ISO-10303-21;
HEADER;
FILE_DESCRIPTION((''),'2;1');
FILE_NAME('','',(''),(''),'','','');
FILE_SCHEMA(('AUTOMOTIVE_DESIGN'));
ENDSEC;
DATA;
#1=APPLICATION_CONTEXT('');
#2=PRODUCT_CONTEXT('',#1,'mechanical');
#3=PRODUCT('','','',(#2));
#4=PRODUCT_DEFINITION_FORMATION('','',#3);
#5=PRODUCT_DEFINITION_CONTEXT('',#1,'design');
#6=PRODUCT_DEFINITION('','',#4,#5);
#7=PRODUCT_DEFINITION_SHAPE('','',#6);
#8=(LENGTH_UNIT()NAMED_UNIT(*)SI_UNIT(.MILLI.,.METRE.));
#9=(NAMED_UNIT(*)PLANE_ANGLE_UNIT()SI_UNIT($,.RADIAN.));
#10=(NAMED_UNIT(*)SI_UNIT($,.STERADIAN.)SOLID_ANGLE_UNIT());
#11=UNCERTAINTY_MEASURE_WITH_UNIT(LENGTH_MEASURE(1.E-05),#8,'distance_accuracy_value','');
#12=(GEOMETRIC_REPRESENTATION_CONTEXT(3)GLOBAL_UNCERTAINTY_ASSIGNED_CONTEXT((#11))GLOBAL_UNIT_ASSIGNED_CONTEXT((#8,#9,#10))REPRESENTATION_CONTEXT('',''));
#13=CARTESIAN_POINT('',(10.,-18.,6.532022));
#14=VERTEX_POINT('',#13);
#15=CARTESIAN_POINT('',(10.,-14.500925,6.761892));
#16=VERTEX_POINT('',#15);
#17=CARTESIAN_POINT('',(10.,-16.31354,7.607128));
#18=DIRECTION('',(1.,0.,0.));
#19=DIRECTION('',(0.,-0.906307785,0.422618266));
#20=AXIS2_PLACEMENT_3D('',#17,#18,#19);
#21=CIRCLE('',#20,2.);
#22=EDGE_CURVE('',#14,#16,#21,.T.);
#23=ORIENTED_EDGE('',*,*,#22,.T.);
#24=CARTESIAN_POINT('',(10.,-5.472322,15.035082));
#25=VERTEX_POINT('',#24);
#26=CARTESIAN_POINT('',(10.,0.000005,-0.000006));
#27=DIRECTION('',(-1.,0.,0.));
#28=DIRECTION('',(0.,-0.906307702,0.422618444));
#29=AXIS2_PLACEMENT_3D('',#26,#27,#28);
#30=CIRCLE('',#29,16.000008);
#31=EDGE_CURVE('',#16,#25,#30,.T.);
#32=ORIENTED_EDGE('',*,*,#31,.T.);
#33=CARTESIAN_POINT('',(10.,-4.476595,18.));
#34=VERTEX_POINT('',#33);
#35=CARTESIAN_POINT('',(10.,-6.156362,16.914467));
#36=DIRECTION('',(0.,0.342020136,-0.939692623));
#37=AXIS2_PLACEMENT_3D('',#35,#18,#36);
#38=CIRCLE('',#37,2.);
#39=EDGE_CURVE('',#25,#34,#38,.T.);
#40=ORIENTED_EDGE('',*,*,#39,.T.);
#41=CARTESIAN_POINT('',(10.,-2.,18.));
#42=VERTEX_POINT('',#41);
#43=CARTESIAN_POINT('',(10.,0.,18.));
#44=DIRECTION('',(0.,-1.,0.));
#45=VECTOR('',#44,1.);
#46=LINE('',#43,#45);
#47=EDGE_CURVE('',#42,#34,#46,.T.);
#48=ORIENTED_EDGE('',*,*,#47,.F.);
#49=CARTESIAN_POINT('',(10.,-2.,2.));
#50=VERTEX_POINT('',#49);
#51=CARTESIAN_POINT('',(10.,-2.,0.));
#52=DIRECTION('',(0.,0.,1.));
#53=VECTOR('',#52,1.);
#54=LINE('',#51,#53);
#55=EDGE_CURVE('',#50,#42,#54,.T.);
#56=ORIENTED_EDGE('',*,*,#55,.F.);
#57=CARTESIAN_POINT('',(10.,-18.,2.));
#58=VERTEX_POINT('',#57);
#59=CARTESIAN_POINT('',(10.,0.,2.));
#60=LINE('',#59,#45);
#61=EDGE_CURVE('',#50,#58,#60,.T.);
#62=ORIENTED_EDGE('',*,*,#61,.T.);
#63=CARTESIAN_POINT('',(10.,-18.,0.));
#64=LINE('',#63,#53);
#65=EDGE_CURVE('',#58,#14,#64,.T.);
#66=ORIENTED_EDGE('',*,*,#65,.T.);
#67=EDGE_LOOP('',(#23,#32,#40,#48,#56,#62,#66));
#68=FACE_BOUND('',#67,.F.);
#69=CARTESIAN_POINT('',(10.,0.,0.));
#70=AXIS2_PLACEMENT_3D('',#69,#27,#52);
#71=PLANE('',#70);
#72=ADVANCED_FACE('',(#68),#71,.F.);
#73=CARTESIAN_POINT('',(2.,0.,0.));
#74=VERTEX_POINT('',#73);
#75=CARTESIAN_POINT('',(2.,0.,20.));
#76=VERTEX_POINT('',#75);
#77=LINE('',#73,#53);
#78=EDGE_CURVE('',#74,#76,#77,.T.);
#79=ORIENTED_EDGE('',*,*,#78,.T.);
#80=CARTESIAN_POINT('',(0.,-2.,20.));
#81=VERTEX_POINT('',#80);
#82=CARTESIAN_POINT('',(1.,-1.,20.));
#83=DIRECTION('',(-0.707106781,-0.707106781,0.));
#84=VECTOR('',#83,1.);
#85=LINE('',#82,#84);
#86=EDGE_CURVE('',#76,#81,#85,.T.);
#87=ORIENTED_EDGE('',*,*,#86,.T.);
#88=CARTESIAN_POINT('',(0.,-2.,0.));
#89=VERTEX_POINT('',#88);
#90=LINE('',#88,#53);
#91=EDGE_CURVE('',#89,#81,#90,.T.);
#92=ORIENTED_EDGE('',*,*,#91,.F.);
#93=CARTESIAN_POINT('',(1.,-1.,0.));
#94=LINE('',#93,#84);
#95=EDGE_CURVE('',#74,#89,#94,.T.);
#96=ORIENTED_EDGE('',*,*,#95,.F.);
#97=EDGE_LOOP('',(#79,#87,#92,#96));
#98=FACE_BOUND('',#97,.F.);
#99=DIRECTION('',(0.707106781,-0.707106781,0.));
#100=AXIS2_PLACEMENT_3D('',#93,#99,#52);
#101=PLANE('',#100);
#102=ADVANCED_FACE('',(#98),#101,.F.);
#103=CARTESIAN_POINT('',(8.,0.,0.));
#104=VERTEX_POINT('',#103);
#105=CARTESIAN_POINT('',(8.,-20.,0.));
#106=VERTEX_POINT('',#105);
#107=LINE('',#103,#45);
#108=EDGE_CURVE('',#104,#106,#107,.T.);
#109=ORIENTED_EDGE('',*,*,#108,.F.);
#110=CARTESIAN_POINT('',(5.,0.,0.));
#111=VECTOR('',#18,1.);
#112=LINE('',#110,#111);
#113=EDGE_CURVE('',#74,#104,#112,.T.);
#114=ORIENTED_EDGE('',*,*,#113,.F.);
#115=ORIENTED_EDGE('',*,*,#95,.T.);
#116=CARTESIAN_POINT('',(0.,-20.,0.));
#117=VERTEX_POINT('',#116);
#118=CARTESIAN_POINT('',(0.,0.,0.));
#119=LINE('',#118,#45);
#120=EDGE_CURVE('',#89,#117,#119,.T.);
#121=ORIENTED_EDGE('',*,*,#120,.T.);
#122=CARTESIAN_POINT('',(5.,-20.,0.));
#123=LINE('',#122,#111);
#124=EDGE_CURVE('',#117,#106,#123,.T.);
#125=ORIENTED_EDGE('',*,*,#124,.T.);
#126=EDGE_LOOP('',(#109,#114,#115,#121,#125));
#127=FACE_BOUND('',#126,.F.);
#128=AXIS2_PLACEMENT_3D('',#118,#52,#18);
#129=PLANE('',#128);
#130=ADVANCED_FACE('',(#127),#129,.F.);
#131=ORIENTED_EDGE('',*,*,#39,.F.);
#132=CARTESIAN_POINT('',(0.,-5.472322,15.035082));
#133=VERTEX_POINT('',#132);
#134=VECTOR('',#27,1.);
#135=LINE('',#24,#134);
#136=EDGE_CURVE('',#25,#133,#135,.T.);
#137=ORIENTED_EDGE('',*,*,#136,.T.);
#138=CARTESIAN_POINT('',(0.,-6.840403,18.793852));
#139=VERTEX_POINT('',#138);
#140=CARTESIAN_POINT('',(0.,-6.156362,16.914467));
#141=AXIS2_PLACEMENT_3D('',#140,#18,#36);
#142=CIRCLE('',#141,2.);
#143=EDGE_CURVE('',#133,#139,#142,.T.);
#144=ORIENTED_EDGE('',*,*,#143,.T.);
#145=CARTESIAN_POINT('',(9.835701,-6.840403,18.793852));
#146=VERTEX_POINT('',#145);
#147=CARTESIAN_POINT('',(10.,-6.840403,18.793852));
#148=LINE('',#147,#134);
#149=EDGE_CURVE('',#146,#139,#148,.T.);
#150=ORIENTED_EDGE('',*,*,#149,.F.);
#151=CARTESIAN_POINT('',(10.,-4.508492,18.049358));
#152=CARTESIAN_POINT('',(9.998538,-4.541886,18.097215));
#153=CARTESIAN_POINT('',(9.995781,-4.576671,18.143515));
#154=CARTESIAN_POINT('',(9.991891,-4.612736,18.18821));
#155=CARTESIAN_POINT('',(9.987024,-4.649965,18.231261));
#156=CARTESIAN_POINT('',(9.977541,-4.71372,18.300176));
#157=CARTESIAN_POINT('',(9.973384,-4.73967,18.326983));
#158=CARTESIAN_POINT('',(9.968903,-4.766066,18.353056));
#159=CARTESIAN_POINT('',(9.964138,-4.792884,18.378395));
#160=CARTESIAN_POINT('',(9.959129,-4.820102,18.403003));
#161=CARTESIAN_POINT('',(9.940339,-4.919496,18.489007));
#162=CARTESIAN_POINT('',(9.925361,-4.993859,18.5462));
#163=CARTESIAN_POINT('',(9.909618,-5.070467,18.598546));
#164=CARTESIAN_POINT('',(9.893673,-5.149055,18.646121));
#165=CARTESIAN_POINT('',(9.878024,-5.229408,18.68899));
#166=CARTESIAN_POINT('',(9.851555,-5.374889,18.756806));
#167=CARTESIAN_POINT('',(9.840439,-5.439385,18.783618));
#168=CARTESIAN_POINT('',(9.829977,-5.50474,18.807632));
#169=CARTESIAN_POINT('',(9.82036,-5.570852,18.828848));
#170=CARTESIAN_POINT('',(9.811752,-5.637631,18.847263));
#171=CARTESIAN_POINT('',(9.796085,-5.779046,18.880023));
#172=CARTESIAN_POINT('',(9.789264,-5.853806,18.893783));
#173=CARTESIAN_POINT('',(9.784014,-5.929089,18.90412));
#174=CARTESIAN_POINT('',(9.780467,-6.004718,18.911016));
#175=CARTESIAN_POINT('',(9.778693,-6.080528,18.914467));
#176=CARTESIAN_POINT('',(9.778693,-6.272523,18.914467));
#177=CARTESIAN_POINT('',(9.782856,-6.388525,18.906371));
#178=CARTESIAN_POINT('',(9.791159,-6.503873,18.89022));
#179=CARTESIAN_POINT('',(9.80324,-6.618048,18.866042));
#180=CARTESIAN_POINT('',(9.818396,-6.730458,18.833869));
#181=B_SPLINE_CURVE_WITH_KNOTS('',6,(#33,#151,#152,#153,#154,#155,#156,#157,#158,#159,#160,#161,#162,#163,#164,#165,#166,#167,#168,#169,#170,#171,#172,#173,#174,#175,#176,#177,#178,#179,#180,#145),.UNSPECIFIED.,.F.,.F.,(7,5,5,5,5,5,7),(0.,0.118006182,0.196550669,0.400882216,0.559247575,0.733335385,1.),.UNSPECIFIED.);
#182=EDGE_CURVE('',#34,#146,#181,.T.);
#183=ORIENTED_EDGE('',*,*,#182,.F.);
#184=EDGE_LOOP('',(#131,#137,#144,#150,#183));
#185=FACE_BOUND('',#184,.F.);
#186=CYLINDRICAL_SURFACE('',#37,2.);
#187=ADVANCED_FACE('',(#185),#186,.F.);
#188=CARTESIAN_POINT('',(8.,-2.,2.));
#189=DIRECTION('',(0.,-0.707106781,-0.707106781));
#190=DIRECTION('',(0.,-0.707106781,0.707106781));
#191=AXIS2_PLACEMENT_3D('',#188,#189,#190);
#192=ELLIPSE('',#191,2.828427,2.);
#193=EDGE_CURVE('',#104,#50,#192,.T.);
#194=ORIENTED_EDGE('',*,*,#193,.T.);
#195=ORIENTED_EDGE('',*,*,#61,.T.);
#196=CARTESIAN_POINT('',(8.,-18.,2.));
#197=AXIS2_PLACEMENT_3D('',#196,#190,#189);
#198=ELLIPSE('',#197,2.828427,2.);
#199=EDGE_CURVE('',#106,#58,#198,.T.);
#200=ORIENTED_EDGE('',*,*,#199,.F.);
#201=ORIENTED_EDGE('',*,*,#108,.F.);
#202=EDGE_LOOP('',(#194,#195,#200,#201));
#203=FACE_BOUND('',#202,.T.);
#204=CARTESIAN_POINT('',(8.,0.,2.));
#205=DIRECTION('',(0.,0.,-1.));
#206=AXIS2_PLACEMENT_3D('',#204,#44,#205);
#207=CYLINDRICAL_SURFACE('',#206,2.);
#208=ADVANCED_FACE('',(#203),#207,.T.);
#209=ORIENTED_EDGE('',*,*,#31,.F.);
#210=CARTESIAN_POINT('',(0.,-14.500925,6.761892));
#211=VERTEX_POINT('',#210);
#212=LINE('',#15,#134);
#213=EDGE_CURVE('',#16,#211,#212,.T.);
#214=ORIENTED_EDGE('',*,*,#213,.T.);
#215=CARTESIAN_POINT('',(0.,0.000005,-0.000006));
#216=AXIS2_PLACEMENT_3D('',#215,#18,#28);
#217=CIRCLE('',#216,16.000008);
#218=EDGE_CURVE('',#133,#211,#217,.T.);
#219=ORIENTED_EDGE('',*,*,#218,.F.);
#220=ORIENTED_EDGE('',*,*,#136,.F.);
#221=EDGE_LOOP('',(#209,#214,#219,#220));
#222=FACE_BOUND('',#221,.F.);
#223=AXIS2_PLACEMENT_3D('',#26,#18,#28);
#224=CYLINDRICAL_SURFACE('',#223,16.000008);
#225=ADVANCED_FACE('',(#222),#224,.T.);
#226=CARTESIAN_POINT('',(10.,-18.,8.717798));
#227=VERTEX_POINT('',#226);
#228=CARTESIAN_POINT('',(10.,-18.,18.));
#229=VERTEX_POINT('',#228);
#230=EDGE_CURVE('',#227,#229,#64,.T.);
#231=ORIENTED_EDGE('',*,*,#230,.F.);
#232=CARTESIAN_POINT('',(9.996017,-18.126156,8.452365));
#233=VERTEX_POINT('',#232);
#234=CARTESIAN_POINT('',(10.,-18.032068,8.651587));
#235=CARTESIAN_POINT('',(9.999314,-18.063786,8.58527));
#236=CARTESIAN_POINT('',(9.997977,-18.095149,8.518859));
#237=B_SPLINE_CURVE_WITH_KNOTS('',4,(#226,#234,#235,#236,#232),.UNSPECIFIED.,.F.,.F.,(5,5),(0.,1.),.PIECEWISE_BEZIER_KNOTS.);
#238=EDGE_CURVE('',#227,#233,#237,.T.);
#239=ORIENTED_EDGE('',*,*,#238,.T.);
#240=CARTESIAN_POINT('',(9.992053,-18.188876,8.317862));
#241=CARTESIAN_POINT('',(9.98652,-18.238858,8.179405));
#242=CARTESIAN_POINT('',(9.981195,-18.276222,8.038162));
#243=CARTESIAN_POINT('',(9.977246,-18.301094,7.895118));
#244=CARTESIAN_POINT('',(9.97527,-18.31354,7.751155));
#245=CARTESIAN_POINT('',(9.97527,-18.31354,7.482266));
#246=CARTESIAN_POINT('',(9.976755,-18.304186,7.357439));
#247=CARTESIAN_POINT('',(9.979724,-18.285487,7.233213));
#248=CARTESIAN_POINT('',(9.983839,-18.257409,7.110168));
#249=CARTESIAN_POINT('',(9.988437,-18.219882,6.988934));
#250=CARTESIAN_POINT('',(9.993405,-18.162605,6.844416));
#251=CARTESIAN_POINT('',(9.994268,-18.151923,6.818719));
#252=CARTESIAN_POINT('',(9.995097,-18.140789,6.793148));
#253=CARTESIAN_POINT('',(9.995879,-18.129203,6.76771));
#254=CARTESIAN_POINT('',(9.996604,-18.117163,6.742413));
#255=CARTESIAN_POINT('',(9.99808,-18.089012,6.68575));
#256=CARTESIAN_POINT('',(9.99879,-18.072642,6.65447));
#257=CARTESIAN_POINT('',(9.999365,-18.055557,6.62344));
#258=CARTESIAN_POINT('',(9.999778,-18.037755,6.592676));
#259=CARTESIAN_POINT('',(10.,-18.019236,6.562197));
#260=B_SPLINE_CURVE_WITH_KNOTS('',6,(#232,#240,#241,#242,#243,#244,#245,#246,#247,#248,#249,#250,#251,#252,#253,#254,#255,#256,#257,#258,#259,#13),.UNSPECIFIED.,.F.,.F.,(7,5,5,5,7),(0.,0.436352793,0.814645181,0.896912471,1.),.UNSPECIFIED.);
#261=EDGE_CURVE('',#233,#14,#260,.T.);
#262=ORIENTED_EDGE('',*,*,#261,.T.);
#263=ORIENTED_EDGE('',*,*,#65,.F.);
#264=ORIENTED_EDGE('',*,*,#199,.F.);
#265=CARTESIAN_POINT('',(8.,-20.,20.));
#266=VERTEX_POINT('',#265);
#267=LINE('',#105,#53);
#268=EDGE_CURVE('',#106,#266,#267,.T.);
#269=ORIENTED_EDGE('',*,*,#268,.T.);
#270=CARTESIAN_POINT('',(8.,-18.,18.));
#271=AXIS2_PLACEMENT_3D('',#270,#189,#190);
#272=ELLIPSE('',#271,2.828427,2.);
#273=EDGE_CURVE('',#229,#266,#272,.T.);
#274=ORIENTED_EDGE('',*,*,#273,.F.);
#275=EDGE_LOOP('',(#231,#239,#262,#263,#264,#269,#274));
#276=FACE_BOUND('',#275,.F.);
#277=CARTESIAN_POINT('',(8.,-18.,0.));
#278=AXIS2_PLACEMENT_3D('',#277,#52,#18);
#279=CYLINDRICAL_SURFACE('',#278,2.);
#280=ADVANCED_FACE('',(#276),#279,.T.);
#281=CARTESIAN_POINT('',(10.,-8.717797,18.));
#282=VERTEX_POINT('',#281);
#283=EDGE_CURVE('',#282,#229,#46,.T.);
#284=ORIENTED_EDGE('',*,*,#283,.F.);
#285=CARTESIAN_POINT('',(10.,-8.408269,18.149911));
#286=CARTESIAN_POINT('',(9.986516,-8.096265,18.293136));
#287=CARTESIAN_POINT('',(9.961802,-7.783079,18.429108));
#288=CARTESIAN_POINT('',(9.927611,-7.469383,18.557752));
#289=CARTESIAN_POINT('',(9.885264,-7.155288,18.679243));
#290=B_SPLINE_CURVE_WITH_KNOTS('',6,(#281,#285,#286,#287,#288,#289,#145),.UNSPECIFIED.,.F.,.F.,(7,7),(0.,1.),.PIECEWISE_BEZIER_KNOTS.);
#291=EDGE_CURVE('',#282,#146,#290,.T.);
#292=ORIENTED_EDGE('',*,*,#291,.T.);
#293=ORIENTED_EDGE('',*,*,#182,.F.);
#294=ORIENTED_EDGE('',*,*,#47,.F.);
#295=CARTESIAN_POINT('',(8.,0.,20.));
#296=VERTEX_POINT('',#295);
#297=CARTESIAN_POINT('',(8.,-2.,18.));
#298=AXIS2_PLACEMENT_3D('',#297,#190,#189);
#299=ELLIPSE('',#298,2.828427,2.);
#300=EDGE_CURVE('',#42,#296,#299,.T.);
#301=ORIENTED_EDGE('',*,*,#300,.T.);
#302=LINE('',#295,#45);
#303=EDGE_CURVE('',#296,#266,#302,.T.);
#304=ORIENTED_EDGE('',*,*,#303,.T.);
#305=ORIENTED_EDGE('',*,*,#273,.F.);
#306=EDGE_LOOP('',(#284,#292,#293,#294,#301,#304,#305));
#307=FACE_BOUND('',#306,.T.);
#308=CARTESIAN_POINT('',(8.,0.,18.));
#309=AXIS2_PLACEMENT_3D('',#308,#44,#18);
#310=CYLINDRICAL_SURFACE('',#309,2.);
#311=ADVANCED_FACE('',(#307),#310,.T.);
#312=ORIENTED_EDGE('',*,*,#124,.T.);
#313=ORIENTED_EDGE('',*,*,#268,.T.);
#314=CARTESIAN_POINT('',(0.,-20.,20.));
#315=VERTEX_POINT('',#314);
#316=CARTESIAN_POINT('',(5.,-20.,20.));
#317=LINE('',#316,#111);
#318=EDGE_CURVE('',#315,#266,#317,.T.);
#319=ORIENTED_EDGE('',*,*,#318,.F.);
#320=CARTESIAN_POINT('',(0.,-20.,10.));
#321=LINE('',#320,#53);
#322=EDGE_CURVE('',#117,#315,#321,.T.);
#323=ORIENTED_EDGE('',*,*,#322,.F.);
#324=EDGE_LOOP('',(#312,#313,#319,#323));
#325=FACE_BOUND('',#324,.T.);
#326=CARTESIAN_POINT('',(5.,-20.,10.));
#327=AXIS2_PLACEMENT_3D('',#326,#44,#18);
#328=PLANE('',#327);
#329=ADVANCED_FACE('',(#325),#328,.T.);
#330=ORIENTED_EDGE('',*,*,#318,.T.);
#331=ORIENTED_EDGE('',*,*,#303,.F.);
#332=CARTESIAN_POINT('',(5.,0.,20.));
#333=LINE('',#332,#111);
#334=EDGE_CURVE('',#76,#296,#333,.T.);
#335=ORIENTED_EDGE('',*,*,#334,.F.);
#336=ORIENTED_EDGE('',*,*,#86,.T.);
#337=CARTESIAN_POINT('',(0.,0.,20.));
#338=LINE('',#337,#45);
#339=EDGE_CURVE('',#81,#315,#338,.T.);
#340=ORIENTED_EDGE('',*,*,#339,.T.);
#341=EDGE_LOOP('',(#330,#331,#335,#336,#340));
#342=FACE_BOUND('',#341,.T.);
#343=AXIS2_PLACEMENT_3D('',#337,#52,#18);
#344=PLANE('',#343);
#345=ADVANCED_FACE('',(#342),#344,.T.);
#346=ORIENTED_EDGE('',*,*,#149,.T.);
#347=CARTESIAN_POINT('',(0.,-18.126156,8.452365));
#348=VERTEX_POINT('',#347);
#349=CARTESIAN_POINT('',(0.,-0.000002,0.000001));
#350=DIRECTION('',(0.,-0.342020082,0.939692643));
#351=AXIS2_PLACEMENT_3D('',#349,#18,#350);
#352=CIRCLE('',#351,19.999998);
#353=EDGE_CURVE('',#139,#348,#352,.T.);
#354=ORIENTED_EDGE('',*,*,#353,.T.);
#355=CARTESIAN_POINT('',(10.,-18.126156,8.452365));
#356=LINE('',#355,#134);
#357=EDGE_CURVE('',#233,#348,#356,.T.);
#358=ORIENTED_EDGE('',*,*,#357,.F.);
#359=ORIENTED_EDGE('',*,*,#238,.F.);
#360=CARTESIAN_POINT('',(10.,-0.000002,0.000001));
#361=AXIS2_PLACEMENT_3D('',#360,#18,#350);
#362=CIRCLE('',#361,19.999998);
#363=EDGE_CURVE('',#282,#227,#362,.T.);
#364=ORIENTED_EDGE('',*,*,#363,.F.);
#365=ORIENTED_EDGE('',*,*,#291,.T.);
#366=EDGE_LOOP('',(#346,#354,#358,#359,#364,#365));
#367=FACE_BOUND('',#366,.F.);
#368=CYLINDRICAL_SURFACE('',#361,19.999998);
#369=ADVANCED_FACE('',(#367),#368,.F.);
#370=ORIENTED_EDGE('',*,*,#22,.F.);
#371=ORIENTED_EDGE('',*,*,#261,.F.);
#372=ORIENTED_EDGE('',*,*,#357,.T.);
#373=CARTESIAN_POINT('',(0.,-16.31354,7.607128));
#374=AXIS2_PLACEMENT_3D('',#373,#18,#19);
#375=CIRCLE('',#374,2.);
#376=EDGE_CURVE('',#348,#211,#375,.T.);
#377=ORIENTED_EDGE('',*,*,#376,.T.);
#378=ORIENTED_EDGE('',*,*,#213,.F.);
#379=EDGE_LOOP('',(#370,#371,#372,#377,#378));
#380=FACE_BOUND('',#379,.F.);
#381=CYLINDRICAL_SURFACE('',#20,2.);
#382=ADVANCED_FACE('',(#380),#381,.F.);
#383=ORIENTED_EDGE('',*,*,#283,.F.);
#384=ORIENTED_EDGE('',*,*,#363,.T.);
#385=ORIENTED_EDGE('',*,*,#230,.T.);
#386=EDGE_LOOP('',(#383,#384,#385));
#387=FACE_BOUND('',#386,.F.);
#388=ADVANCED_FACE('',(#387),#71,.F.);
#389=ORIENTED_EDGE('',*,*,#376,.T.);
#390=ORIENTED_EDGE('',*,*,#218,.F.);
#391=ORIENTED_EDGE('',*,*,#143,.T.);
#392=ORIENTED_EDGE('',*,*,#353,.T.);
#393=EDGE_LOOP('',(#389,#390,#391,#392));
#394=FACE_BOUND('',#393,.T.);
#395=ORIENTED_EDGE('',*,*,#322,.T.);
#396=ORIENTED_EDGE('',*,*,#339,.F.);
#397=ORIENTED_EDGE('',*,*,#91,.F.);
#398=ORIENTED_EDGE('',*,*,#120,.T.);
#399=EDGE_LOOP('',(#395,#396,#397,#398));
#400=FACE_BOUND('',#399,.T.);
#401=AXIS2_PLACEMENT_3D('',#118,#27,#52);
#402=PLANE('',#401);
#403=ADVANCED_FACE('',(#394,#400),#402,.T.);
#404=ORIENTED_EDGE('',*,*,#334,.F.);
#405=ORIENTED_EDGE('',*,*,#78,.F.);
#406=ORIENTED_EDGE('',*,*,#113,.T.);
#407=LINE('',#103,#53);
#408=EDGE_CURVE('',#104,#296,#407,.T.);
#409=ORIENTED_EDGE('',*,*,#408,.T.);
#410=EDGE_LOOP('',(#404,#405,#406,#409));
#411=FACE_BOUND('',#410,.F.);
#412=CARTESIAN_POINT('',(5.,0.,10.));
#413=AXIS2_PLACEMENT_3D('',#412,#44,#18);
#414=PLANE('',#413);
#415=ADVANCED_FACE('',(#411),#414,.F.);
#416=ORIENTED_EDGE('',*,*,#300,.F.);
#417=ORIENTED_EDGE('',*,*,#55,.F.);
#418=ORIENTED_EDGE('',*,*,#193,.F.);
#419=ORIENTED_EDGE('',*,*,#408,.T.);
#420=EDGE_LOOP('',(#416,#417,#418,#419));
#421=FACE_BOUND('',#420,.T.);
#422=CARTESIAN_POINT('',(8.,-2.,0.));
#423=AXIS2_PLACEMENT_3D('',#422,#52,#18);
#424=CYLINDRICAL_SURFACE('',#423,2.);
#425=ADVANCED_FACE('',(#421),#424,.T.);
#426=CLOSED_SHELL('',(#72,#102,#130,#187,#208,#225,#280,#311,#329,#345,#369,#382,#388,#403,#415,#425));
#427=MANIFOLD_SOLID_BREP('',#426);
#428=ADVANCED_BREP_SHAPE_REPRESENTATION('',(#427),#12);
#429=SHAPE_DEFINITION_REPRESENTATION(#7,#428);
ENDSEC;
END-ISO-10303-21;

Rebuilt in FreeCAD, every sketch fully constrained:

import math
import FreeCAD as App
import Part
import Sketcher


def edges_at(feature, points):
    """Names of the edges that pass closest to the given points."""
    edges = feature.Shape.Edges
    near = lambda p: min(range(len(edges)), key=lambda i: edges[i].distToShape(Part.Vertex(*p))[0])
    return sorted({f"Edge{near(p) + 1}" for p in points})


def add_polygon(sketch, points):
    """Adds a closed chain of lines whose ends are joined by coincident constraints."""
    first, n = sketch.GeometryCount, len(points)
    for a, b in zip(points, points[1:] + points[:1]):
        sketch.addGeometry(Part.LineSegment(App.Vector(*a, 0), App.Vector(*b, 0)), False)
    for i in range(n):
        sketch.addConstraint(Sketcher.Constraint("Coincident", first + i, 2, first + (i + 1) % n, 1))

doc = App.newDocument("Part")
body = doc.addObject("PartDesign::Body", "Body")

# Sketch on XZ plane
sketch1 = body.newObject("Sketcher::SketchObject", "Sketch")
sketch1.AttachmentSupport = (doc.getObject("XZ_Plane"), [""])
sketch1.MapMode = "FlatFace"
add_polygon(sketch1, [(0, 20), (0, 0), (10, 0), (10, 20)])  # lines 0-3
sketch1.addConstraint([
    Sketcher.Constraint("Vertical", 0),
    Sketcher.Constraint("Horizontal", 1),
    Sketcher.Constraint("Vertical", 2),
    Sketcher.Constraint("Horizontal", 3),
    Sketcher.Constraint("Coincident", 0, 2, -1, 1),
    Sketcher.Constraint("DistanceX", 1, 1, 1, 2, 10.0),
    Sketcher.Constraint("DistanceY", 0, 2, 0, 1, 20.0),
])
pad1 = body.newObject("PartDesign::Pad", "Pad")
pad1.Profile = sketch1
pad1.Length = 20
doc.recompute()

fillet = body.newObject("PartDesign::Fillet", "Fillet")
fillet.Base = (pad1, edges_at(pad1, [
    (10, -10, 0),
    (10, -10, 20),
    (10, 0, 10),
    (10, -20, 10),
]))
fillet.Radius = 2
doc.recompute()

chamfer = body.newObject("PartDesign::Chamfer", "Chamfer")
chamfer.Base = (fillet, edges_at(fillet, [(0, 0, 10)]))
chamfer.Size = 2

# Sketch on YZ plane
sketch2 = body.newObject("Sketcher::SketchObject", "Sketch001")
sketch2.AttachmentSupport = (doc.getObject("YZ_Plane"), [""])
sketch2.MapMode = "FlatFace"
sketch2.AttachmentOffset = App.Placement(App.Vector(0, 0, 10), App.Rotation())
sketch2.addGeometry([
    Part.ArcOfCircle(Part.Circle(App.Vector(-6.2, 16.9, 0), App.Vector(0, 0, 1), 2), math.radians(-70), math.radians(110)),
    Part.ArcOfCircle(Part.Circle(App.Vector(0, 0, 0), App.Vector(0, 0, 1), 20), math.radians(110), math.radians(155)),
    Part.ArcOfCircle(Part.Circle(App.Vector(-16.3, 7.6, 0), App.Vector(0, 0, 1), 2), math.radians(155), math.radians(335)),
    Part.ArcOfCircle(Part.Circle(App.Vector(0, 0, 0), App.Vector(0, 0, 1), 16), math.radians(110), math.radians(155)),
], False)
sketch2.addConstraint([
    Sketcher.Constraint("Tangent", 0, 2, 1, 1),
    Sketcher.Constraint("Tangent", 1, 2, 2, 1),
    Sketcher.Constraint("Tangent", 2, 2, 3, 2),
    Sketcher.Constraint("Tangent", 3, 1, 0, 1),
    Sketcher.Constraint("Coincident", 1, 3, -1, 1),
    Sketcher.Constraint("Coincident", 3, 3, -1, 1),
    Sketcher.Constraint("Radius", 0, 2.0),
    Sketcher.Constraint("Radius", 1, 19.999998),
    Sketcher.Constraint("DistanceX", 0, 2, 1, 3, 6.840401),
    Sketcher.Constraint("DistanceX", 2, 3, -1, 1, 16.31354),
])
pocket1 = body.newObject("PartDesign::Pocket", "Pocket")
pocket1.Profile = sketch2
pocket1.Length = 24.4

doc.recompute()
